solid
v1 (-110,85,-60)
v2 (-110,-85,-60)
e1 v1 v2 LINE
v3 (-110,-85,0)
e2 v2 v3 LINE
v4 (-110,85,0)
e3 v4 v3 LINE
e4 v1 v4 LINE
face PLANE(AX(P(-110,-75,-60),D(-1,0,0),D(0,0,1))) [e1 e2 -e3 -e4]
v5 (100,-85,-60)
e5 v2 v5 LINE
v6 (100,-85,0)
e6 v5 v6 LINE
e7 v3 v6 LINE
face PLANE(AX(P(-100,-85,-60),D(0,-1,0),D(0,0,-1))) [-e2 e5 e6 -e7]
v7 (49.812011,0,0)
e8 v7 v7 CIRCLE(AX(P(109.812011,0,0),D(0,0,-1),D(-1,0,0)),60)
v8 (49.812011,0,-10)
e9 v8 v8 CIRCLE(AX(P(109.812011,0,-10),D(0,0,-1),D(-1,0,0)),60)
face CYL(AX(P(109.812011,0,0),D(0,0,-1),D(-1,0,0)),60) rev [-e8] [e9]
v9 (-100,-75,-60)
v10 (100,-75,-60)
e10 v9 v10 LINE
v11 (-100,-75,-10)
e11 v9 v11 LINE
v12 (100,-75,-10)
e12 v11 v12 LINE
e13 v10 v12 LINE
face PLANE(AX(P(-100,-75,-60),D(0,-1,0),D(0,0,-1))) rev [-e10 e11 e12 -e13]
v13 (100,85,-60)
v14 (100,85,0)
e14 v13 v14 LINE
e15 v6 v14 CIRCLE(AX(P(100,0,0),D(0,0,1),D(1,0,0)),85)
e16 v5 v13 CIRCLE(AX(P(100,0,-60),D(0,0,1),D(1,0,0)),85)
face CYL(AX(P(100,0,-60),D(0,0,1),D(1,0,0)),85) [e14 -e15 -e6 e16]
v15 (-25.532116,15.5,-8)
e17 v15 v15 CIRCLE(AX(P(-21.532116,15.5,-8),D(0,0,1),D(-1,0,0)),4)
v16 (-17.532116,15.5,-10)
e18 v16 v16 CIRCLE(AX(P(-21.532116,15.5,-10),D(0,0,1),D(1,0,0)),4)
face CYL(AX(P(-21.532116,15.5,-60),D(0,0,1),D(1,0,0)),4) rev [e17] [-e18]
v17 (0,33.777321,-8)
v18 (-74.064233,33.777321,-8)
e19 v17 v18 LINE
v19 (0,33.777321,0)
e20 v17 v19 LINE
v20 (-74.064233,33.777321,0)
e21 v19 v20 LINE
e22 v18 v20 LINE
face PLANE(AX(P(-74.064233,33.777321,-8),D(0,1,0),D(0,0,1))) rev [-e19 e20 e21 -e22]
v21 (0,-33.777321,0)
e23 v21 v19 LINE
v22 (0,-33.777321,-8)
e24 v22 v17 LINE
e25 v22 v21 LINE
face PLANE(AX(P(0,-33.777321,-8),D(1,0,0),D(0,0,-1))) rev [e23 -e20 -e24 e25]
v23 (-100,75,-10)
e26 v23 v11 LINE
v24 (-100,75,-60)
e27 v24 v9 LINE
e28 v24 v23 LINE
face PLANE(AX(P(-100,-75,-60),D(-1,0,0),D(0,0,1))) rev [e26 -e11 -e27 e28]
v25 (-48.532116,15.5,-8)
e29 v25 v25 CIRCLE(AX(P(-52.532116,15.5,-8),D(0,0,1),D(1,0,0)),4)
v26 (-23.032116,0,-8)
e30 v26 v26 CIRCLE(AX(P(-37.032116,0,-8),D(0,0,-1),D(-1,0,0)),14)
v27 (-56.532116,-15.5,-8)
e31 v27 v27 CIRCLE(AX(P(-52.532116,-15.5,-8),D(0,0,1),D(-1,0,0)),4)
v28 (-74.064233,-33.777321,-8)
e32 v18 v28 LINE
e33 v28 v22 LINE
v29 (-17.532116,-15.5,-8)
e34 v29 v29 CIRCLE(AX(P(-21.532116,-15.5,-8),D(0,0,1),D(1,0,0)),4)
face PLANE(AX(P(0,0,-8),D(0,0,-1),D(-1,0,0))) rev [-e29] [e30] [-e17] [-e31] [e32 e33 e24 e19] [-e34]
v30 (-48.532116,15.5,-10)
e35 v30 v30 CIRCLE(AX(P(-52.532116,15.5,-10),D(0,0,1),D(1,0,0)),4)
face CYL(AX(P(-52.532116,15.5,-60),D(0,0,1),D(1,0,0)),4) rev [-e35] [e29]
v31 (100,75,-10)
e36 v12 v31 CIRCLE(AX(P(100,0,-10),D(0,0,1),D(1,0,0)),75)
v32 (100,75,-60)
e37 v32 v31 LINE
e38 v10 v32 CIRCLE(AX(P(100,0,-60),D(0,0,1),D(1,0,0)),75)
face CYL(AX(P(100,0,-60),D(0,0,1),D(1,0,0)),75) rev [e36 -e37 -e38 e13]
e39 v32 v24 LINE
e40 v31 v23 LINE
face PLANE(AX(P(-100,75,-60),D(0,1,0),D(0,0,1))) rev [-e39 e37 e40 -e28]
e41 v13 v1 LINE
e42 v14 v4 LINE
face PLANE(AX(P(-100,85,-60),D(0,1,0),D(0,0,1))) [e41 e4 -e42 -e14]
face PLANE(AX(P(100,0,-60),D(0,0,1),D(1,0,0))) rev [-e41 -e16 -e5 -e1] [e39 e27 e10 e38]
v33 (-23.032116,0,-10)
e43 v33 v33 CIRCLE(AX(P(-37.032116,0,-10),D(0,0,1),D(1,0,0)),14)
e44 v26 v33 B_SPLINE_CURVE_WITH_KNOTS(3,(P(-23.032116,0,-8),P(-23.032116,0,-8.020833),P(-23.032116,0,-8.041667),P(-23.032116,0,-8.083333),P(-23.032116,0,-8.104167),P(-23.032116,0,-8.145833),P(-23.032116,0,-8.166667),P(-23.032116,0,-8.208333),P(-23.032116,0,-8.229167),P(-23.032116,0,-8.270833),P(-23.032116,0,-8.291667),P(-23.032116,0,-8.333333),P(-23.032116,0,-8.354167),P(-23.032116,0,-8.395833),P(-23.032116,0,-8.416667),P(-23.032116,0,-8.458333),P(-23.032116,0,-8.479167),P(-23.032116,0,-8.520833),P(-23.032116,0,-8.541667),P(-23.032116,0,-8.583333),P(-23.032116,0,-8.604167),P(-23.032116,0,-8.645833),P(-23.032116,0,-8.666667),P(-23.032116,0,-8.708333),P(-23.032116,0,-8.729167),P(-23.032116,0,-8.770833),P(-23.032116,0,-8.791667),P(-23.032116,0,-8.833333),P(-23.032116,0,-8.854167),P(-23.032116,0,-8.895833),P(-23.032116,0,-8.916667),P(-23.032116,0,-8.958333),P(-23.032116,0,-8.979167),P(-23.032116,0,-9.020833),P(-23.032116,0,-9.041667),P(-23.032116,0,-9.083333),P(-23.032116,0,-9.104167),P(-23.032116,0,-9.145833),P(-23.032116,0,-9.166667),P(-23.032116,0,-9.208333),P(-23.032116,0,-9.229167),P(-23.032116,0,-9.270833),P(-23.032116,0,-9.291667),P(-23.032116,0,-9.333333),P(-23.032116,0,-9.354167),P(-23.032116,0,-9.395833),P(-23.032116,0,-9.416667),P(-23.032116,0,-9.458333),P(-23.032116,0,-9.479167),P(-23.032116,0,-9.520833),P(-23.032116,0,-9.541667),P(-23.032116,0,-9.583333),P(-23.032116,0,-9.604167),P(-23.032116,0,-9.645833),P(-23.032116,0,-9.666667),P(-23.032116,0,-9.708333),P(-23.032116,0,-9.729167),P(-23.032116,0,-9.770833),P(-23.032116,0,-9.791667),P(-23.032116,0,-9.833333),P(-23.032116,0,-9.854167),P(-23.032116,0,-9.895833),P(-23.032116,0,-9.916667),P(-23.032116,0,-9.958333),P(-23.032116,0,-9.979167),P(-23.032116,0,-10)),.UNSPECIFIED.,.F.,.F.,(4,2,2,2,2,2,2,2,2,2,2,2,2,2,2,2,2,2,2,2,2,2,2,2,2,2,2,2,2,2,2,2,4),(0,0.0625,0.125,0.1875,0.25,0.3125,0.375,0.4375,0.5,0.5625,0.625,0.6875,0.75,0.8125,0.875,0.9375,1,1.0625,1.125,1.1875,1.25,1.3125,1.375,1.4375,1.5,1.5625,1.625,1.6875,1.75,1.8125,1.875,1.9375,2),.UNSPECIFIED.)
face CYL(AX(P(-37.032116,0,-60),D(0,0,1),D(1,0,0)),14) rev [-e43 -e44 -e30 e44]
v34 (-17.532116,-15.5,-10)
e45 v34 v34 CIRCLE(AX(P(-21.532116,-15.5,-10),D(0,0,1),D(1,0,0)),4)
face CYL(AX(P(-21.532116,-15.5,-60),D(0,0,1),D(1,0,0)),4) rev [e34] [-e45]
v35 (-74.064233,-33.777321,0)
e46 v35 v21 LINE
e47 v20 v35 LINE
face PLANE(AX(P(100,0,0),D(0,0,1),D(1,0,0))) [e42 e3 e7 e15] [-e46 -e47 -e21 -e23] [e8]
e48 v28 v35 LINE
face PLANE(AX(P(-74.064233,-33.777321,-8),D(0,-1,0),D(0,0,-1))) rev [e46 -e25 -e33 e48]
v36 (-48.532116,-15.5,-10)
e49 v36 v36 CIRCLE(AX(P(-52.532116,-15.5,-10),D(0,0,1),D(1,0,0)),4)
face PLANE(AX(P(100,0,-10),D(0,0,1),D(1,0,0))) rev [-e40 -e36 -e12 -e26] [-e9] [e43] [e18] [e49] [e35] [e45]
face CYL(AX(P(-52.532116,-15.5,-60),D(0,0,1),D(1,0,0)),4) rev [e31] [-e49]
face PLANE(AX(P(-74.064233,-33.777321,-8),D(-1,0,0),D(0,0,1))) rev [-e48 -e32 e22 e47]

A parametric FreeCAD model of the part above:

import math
import FreeCAD as App
import Part
import Sketcher
Q = App.Units.Quantity


def add_polygon(sketch, points):
    """Adds a closed chain of lines whose ends are joined by coincident constraints."""
    first, n = sketch.GeometryCount, len(points)
    for a, b in zip(points, points[1:] + points[:1]):
        sketch.addGeometry(Part.LineSegment(App.Vector(*a, 0), App.Vector(*b, 0)), False)
    for i in range(n):
        sketch.addConstraint(Sketcher.Constraint("Coincident", first + i, 2, first + (i + 1) % n, 1))

doc = App.newDocument("Part")
body = doc.addObject("PartDesign::Body", "Body")

sketch1 = doc.addObject("Sketcher::SketchObject", "Sketch")
body.addObject(sketch1)
sketch1.AttachmentSupport = (doc.XY_Plane, [""])
sketch1.MapMode = "FlatFace"
sketch1.addGeometry([
    Part.LineSegment(App.Vector(100, 85, 0), App.Vector(-110, 85, 0)),
    Part.LineSegment(App.Vector(-110, 85, 0), App.Vector(-110, -85, 0)),
    Part.LineSegment(App.Vector(-110, -85, 0), App.Vector(100, -85, 0)),
    Part.ArcOfCircle(Part.Circle(App.Vector(100, 0, 0), App.Vector(0, 0, 1), 85), math.radians(-90), math.radians(90)),
    Part.LineSegment(App.Vector(-100, 75, 0), App.Vector(100, 75, 0)),
    Part.ArcOfCircle(Part.Circle(App.Vector(100, 0, 0), App.Vector(0, 0, 1), 75), math.radians(-90), math.radians(90)),
    Part.LineSegment(App.Vector(100, -75, 0), App.Vector(-100, -75, 0)),
    Part.LineSegment(App.Vector(-100, -75, 0), App.Vector(-100, 75, 0)),
], False)
sketch1.addConstraint([
    Sketcher.Constraint("Coincident", 0, 2, 1, 1),
    Sketcher.Constraint("Coincident", 1, 2, 2, 1),
    Sketcher.Constraint("Tangent", 2, 2, 3, 1),
    Sketcher.Constraint("Tangent", 3, 2, 0, 1),
    Sketcher.Constraint("Tangent", 4, 2, 5, 2),
    Sketcher.Constraint("Tangent", 5, 1, 6, 1),
    Sketcher.Constraint("Coincident", 6, 2, 7, 1),
    Sketcher.Constraint("Coincident", 7, 2, 4, 1),
    Sketcher.Constraint("Horizontal", 0),
    Sketcher.Constraint("Vertical", 1),
    Sketcher.Constraint("Horizontal", 2),
    Sketcher.Constraint("Horizontal", 4),
    Sketcher.Constraint("Horizontal", 6),
    Sketcher.Constraint("Vertical", 7),
    Sketcher.Constraint("Coincident", 5, 3, 3, 3),
    Sketcher.Constraint("Symmetric", 4, 2, 6, 2, -1, 1),
    Sketcher.Constraint("Radius", 3, Q("85 mm")),
    Sketcher.Constraint("Radius", 5, Q("75 mm")),
    Sketcher.Constraint("DistanceX", 0, 2, 0, 1, Q("210 mm")),
    Sketcher.Constraint("DistanceX", 4, 1, 4, 2, Q("200 mm")),
])
pad1 = doc.addObject("PartDesign::Pad", "Pad")
body.addObject(pad1)
pad1.Profile = sketch1
pad1.Length = 60
pad1.Reversed = True

sketch2 = doc.addObject("Sketcher::SketchObject", "Sketch001")
body.addObject(sketch2)
sketch2.AttachmentSupport = (doc.XY_Plane, [""])
sketch2.MapMode = "FlatFace"
sketch2.addGeometry([
    Part.LineSegment(App.Vector(-100, -75, 0), App.Vector(100, -75, 0)),
    Part.ArcOfCircle(Part.Circle(App.Vector(100, 0, 0), App.Vector(0, 0, 1), 75), math.radians(-90), math.radians(90)),
    Part.LineSegment(App.Vector(100, 75, 0), App.Vector(-100, 75, 0)),
    Part.LineSegment(App.Vector(-100, 75, 0), App.Vector(-100, -75, 0)),
], False)
sketch2.addConstraint([
    Sketcher.Constraint("Tangent", 0, 2, 1, 1),
    Sketcher.Constraint("Tangent", 1, 2, 2, 1),
    Sketcher.Constraint("Coincident", 2, 2, 3, 1),
    Sketcher.Constraint("Coincident", 3, 2, 0, 1),
    Sketcher.Constraint("Horizontal", 0),
    Sketcher.Constraint("Horizontal", 2),
    Sketcher.Constraint("Vertical", 3),
    Sketcher.Constraint("Symmetric", 0, 2, 2, 2, -1, 1),
    Sketcher.Constraint("Radius", 1, Q("75 mm")),
    Sketcher.Constraint("DistanceX", 0, 1, 0, 2, Q("200 mm")),
])
pad2 = doc.addObject("PartDesign::Pad", "Pad001")
body.addObject(pad2)
pad2.Profile = sketch2
pad2.Length = 10
pad2.Reversed = True

sketch3 = doc.addObject("Sketcher::SketchObject", "Sketch002")
body.addObject(sketch3)
sketch3.AttachmentSupport = (doc.XY_Plane, [""])
sketch3.MapMode = "FlatFace"
sketch3.AttachmentOffset = App.Placement(App.Vector(0, 0, -10), App.Rotation())
sketch3.addGeometry(Part.Circle(App.Vector(109.812011, 0, 0), App.Vector(0, 0, 1), 60), False)
sketch3.addConstraint([
    Sketcher.Constraint("PointOnObject", 0, 3, -1),
    Sketcher.Constraint("Diameter", 0, Q("120 mm")),
    Sketcher.Constraint("DistanceX", -1, 1, 0, 3, Q("109.812011 mm")),
])
pocket1 = doc.addObject("PartDesign::Pocket", "Pocket")
body.addObject(pocket1)
pocket1.Profile = sketch3
pocket1.Type = "ThroughAll"
pocket1.Reversed = True

sketch4 = doc.addObject("Sketcher::SketchObject", "Sketch003")
body.addObject(sketch4)
sketch4.AttachmentSupport = (doc.XY_Plane, [""])
sketch4.MapMode = "FlatFace"
add_polygon(sketch4, [(-74.064233, 33.777321), (-74.064233, -33.777321), (0, -33.777321), (0, 33.777321)])
sketch4.addGeometry(Part.Circle(App.Vector(-37.032116, 0, 0), App.Vector(0, 0, 1), 14), False)
sketch4.addConstraint([
    Sketcher.Constraint("Vertical", 0),
    Sketcher.Constraint("Horizontal", 1),
    Sketcher.Constraint("Vertical", 2),
    Sketcher.Constraint("Horizontal", 3),
    Sketcher.Constraint("Symmetric", 1, 2, 2, 2, -1, 1),
    Sketcher.Constraint("PointOnObject", 4, 3, -1),
    Sketcher.Constraint("Diameter", 4, Q("28 mm")),
    Sketcher.Constraint("DistanceY", 0, 2, 0, 1, Q("67.554642 mm")),
    Sketcher.Constraint("DistanceX", 1, 1, 1, 2, Q("74.064233 mm")),
    Sketcher.Constraint("DistanceX", 4, 3, -1, 1, Q("37.032116 mm")),
])
pocket2 = doc.addObject("PartDesign::Pocket", "Pocket001")
body.addObject(pocket2)
pocket2.Profile = sketch4
pocket2.Length = 8

sketch5 = doc.addObject("Sketcher::SketchObject", "Sketch004")
body.addObject(sketch5)
sketch5.AttachmentSupport = (doc.XY_Plane, [""])
sketch5.MapMode = "FlatFace"
sketch5.addGeometry(Part.Circle(App.Vector(-37.032116, 0, 0), App.Vector(0, 0, 1), 14), False)
sketch5.addConstraint([
    Sketcher.Constraint("PointOnObject", 0, 3, -1),
    Sketcher.Constraint("Diameter", 0, Q("28 mm")),
    Sketcher.Constraint("DistanceX", 0, 3, -1, 1, Q("37.032116 mm")),
])
pocket3 = doc.addObject("PartDesign::Pocket", "Pocket002")
body.addObject(pocket3)
pocket3.Profile = sketch5
pocket3.Type = "ThroughAll"

sketch6 = doc.addObject("Sketcher::SketchObject", "Sketch005")
body.addObject(sketch6)
sketch6.AttachmentSupport = (doc.XY_Plane, [""])
sketch6.MapMode = "FlatFace"
sketch6.AttachmentOffset = App.Placement(App.Vector(0, 0, -8), App.Rotation())
sketch6.addGeometry([
    Part.Circle(App.Vector(-52.532116, 15.5, 0), App.Vector(0, 0, 1), 4),
    Part.Circle(App.Vector(-21.532116, 15.5, 0), App.Vector(0, 0, 1), 4),
    Part.Circle(App.Vector(-21.532116, -15.5, 0), App.Vector(0, 0, 1), 4),
    Part.Circle(App.Vector(-52.532116, -15.5, 0), App.Vector(0, 0, 1), 4),
], False)
sketch6.addConstraint([
    Sketcher.Constraint("Equal", 0, 1),
    Sketcher.Constraint("Equal", 1, 2),
    Sketcher.Constraint("Equal", 2, 3),
    Sketcher.Constraint("Symmetric", 1, 3, 2, 3, -1),
    Sketcher.Constraint("Symmetric", 0, 3, 3, 3, -1),
    Sketcher.Constraint("Horizontal", 0, 3, 1, 3),
    Sketcher.Constraint("Diameter", 0, Q("8 mm")),
    Sketcher.Constraint("DistanceX", 0, 3, 1, 3, Q("31 mm")),
    Sketcher.Constraint("DistanceY", 2, 3, 1, 3, Q("31 mm")),
    Sketcher.Constraint("DistanceX", 0, 3, -1, 1, Q("52.532116 mm")),
])
pocket4 = doc.addObject("PartDesign::Pocket", "Pocket003")
body.addObject(pocket4)
pocket4.Profile = sketch6
pocket4.Type = "ThroughAll"

doc.recompute()
